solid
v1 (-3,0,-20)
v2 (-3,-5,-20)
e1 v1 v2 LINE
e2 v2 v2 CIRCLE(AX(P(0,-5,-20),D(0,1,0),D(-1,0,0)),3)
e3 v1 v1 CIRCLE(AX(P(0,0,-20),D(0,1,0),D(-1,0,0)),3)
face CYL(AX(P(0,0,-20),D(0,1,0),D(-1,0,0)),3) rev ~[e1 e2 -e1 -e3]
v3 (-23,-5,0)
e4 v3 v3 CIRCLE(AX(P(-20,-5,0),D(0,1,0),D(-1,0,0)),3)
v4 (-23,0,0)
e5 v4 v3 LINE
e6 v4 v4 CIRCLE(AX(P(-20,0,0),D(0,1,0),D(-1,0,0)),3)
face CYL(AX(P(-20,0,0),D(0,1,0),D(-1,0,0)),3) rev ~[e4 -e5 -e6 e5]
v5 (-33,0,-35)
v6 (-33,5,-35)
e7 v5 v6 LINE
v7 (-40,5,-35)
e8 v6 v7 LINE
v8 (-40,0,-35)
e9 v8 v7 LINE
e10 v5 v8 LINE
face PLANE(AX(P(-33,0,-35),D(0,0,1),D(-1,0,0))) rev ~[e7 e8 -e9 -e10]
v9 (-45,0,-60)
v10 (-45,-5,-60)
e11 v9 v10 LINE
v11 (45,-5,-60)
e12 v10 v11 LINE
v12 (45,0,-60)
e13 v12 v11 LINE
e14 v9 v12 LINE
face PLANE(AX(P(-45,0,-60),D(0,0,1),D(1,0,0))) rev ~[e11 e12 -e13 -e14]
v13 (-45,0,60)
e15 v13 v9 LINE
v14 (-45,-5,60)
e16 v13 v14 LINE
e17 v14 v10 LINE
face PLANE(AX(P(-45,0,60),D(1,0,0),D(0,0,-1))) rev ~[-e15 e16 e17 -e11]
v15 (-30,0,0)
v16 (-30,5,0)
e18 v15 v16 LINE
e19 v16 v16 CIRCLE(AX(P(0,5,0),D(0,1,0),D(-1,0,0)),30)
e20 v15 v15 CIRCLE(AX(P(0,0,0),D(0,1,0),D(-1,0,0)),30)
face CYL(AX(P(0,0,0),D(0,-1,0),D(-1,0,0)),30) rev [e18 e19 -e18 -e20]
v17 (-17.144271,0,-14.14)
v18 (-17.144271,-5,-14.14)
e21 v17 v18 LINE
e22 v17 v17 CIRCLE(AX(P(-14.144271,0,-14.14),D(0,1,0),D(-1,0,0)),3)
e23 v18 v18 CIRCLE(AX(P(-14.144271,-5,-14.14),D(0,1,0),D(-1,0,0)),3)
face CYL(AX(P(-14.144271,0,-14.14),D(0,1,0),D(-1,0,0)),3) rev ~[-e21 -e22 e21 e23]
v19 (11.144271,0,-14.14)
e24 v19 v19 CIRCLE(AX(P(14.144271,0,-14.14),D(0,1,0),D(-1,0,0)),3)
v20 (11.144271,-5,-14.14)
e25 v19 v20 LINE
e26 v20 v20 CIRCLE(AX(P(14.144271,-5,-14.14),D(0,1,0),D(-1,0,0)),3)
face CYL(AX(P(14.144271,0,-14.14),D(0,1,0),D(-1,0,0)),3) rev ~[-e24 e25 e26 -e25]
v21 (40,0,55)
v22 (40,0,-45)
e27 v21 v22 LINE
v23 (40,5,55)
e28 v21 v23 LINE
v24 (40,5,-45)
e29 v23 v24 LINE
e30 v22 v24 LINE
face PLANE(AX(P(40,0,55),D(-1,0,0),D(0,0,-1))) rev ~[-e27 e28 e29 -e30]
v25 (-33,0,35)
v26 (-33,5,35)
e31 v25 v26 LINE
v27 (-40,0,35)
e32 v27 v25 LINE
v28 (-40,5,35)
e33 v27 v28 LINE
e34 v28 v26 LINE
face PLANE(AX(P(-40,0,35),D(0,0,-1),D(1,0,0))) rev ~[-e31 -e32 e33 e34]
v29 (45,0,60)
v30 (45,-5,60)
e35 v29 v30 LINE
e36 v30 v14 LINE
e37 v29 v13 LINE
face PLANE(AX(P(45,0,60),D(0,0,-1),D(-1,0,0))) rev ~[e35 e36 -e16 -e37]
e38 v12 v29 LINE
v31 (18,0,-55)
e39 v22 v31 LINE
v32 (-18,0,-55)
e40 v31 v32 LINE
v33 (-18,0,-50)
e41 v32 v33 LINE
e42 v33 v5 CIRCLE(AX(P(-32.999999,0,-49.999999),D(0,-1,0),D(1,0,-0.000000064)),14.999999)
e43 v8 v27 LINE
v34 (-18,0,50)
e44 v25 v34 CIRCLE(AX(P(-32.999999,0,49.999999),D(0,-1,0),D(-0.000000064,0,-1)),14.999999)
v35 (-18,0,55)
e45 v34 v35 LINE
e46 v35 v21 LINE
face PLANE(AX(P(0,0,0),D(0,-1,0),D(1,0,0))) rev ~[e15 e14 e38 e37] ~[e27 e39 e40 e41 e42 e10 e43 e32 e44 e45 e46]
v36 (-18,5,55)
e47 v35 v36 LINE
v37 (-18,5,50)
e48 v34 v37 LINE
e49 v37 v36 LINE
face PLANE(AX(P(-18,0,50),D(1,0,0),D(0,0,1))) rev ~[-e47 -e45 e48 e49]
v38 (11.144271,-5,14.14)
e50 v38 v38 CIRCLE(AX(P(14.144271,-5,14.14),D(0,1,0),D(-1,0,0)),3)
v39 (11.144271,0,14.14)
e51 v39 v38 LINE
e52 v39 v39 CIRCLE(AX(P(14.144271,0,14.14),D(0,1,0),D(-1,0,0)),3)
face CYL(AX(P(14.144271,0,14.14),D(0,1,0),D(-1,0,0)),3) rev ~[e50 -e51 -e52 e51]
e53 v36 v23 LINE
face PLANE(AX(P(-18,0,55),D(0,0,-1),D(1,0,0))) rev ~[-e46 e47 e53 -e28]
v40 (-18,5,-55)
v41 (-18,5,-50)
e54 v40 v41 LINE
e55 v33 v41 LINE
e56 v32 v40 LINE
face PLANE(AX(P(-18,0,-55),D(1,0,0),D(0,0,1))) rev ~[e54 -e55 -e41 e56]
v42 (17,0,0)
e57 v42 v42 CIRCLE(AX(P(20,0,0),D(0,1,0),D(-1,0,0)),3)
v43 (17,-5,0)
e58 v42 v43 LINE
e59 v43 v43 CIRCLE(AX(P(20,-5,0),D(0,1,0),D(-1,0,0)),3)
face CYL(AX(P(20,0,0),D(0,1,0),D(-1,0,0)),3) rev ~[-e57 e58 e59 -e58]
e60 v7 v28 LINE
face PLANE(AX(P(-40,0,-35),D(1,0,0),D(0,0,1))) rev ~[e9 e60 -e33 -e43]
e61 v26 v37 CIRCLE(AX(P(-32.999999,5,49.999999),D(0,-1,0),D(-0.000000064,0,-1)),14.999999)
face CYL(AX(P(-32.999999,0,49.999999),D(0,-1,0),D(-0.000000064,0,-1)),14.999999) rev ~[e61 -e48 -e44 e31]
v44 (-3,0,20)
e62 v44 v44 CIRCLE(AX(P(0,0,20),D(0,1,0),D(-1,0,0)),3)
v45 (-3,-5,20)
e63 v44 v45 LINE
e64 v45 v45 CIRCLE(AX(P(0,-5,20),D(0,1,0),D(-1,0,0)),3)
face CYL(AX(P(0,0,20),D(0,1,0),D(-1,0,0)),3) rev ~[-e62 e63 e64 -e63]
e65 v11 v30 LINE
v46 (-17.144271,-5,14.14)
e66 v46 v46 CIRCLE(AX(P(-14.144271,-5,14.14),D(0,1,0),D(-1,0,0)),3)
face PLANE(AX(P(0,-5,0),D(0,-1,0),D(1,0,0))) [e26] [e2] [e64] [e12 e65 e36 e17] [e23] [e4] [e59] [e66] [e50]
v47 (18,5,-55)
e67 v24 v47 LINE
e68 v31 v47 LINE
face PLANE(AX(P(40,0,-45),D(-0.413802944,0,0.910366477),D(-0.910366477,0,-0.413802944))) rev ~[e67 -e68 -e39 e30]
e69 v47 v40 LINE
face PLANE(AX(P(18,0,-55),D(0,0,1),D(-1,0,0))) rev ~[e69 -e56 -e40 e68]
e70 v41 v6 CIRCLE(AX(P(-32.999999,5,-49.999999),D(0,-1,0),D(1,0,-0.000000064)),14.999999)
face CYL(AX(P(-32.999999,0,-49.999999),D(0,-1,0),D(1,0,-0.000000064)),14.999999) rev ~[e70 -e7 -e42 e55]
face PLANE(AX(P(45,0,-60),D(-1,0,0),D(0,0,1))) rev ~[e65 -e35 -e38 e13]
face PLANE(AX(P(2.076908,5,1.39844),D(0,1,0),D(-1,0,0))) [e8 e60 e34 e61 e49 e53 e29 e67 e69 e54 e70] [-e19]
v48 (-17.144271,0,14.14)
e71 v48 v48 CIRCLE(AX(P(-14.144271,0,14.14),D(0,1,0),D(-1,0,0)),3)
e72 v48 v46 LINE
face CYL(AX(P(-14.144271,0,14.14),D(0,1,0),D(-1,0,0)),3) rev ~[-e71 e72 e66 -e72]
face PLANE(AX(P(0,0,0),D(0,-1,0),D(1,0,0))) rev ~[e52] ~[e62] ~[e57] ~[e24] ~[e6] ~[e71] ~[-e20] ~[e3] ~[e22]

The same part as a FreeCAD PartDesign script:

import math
import FreeCAD as App
import Part
import Sketcher

doc = App.newDocument("Part")
body = doc.addObject("PartDesign::Body", "Body")

sketch1 = body.newObject("Sketcher::SketchObject", "Sketch")
sketch1.AttachmentSupport = (doc.getObject("XZ_Plane"), [""])
sketch1.MapMode = "FlatFace"
sketch1.addGeometry(Part.LineSegment(App.Vector(45, -60, 0), App.Vector(45, 60, 0)), False)
sketch1.addGeometry(Part.LineSegment(App.Vector(45, 60, 0), App.Vector(-45, 60, 0)), False)
sketch1.addGeometry(Part.LineSegment(App.Vector(-45, 60, 0), App.Vector(-45, -60, 0)), False)
sketch1.addGeometry(Part.LineSegment(App.Vector(-45, -60, 0), App.Vector(45, -60, 0)), False)
sketch1.addConstraint(Sketcher.Constraint("Coincident", 0, 2, 1, 1))
sketch1.addConstraint(Sketcher.Constraint("Coincident", 1, 2, 2, 1))
sketch1.addConstraint(Sketcher.Constraint("Coincident", 2, 2, 3, 1))
sketch1.addConstraint(Sketcher.Constraint("Coincident", 3, 2, 0, 1))
sketch1.addConstraint(Sketcher.Constraint("Vertical", 0))
sketch1.addConstraint(Sketcher.Constraint("Horizontal", 1))
sketch1.addConstraint(Sketcher.Constraint("Vertical", 2))
sketch1.addConstraint(Sketcher.Constraint("Horizontal", 3))
sketch1.addConstraint(Sketcher.Constraint("Symmetric", 0, 2, 2, 2, -1, 1))
sketch1.addConstraint(Sketcher.Constraint("DistanceX", 1, 2, 1, 1, 90.0))
sketch1.addConstraint(Sketcher.Constraint("DistanceY", 0, 1, 0, 2, 120.0))
pad1 = body.newObject("PartDesign::Pad", "Pad")
pad1.Profile = sketch1
pad1.Length = 5

sketch2 = body.newObject("Sketcher::SketchObject", "Sketch001")
sketch2.AttachmentSupport = (doc.getObject("XZ_Plane"), [""])
sketch2.MapMode = "FlatFace"
sketch2.addGeometry(Part.LineSegment(App.Vector(40, 55, 0), App.Vector(40, -45, 0)), False)
sketch2.addGeometry(Part.LineSegment(App.Vector(40, -45, 0), App.Vector(18, -55, 0)), False)
sketch2.addGeometry(Part.LineSegment(App.Vector(18, -55, 0), App.Vector(-18, -55, 0)), False)
sketch2.addGeometry(Part.LineSegment(App.Vector(-18, -55, 0), App.Vector(-18, -50, 0)), False)
sketch2.addGeometry(Part.ArcOfCircle(Part.Circle(App.Vector(-33, -50, 0), App.Vector(0, 0, 1), 15), math.radians(0), math.radians(90)), False)
sketch2.addGeometry(Part.LineSegment(App.Vector(-33, -35, 0), App.Vector(-40, -35, 0)), False)
sketch2.addGeometry(Part.LineSegment(App.Vector(-40, -35, 0), App.Vector(-40, 35, 0)), False)
sketch2.addGeometry(Part.LineSegment(App.Vector(-40, 35, 0), App.Vector(-33, 35, 0)), False)
sketch2.addGeometry(Part.ArcOfCircle(Part.Circle(App.Vector(-33, 50, 0), App.Vector(0, 0, 1), 15), math.radians(-90), math.radians(0)), False)
sketch2.addGeometry(Part.LineSegment(App.Vector(-18, 50, 0), App.Vector(-18, 55, 0)), False)
sketch2.addGeometry(Part.LineSegment(App.Vector(-18, 55, 0), App.Vector(40, 55, 0)), False)
sketch2.addGeometry(Part.Circle(App.Vector(0, 0, 0), App.Vector(0, 0, 1), 30), False)
sketch2.addConstraint(Sketcher.Constraint("Coincident", 0, 2, 1, 1))
sketch2.addConstraint(Sketcher.Constraint("Coincident", 1, 2, 2, 1))
sketch2.addConstraint(Sketcher.Constraint("Coincident", 2, 2, 3, 1))
sketch2.addConstraint(Sketcher.Constraint("Tangent", 3, 2, 4, 1))
sketch2.addConstraint(Sketcher.Constraint("Tangent", 4, 2, 5, 1))
sketch2.addConstraint(Sketcher.Constraint("Coincident", 5, 2, 6, 1))
sketch2.addConstraint(Sketcher.Constraint("Coincident", 6, 2, 7, 1))
sketch2.addConstraint(Sketcher.Constraint("Tangent", 7, 2, 8, 1))
sketch2.addConstraint(Sketcher.Constraint("Tangent", 8, 2, 9, 1))
sketch2.addConstraint(Sketcher.Constraint("Coincident", 9, 2, 10, 1))
sketch2.addConstraint(Sketcher.Constraint("Coincident", 10, 2, 0, 1))
sketch2.addConstraint(Sketcher.Constraint("Vertical", 0))
sketch2.addConstraint(Sketcher.Constraint("Horizontal", 2))
sketch2.addConstraint(Sketcher.Constraint("Vertical", 3))
sketch2.addConstraint(Sketcher.Constraint("Horizontal", 5))
sketch2.addConstraint(Sketcher.Constraint("Vertical", 6))
sketch2.addConstraint(Sketcher.Constraint("Horizontal", 7))
sketch2.addConstraint(Sketcher.Constraint("Vertical", 9))
sketch2.addConstraint(Sketcher.Constraint("Horizontal", 10))
sketch2.addConstraint(Sketcher.Constraint("Coincident", 11, 3, -1, 1))
sketch2.addConstraint(Sketcher.Constraint("Equal", 4, 8))
sketch2.addConstraint(Sketcher.Constraint("Symmetric", 1, 2, 9, 2, -1, 1))
sketch2.addConstraint(Sketcher.Constraint("Symmetric", 4, 3, 8, 3, -1))
sketch2.addConstraint(Sketcher.Constraint("Diameter", 11, 60.0))
sketch2.addConstraint(Sketcher.Constraint("Radius", 4, 14.999999))
sketch2.addConstraint(Sketcher.Constraint("DistanceX", 2, 2, 2, 1, 36.0))
sketch2.addConstraint(Sketcher.Constraint("DistanceX", 5, 2, 5, 1, 7.0))
sketch2.addConstraint(Sketcher.Constraint("DistanceX", 10, 1, 10, 2, 58.0))
sketch2.addConstraint(Sketcher.Constraint("DistanceY", 0, 2, 0, 1, 100.0))
sketch2.addConstraint(Sketcher.Constraint("DistanceY", 3, 1, 3, 2, 5.0))
sketch2.addConstraint(Sketcher.Constraint("DistanceY", 6, 1, 6, 2, 70.0))
pad2 = body.newObject("PartDesign::Pad", "Pad001")
pad2.Profile = sketch2
pad2.Length = 5
pad2.Reversed = True

sketch3 = body.newObject("Sketcher::SketchObject", "Sketch002")
sketch3.AttachmentSupport = (doc.getObject("XZ_Plane"), [""])
sketch3.MapMode = "FlatFace"
sketch3.addGeometry(Part.Circle(App.Vector(14.1, -14.1, 0), App.Vector(0, 0, 1), 3), False)
sketch3.addGeometry(Part.Circle(App.Vector(20, 0, 0), App.Vector(0, 0, 1), 3), False)
sketch3.addGeometry(Part.Circle(App.Vector(14.1, 14.1, 0), App.Vector(0, 0, 1), 3), False)
sketch3.addGeometry(Part.Circle(App.Vector(0, 20, 0), App.Vector(0, 0, 1), 3), False)
sketch3.addGeometry(Part.Circle(App.Vector(-14.1, 14.1, 0), App.Vector(0, 0, 1), 3), False)
sketch3.addGeometry(Part.Circle(App.Vector(-20, 0, 0), App.Vector(0, 0, 1), 3), False)
sketch3.addGeometry(Part.Circle(App.Vector(-14.1, -14.1, 0), App.Vector(0, 0, 1), 3), False)
sketch3.addGeometry(Part.Circle(App.Vector(0, -20, 0), App.Vector(0, 0, 1), 3), False)
sketch3.addConstraint(Sketcher.Constraint("Equal", 0, 1))
sketch3.addConstraint(Sketcher.Constraint("Equal", 1, 2))
sketch3.addConstraint(Sketcher.Constraint("Equal", 2, 3))
sketch3.addConstraint(Sketcher.Constraint("Equal", 3, 4))
sketch3.addConstraint(Sketcher.Constraint("Equal", 4, 5))
sketch3.addConstraint(Sketcher.Constraint("Equal", 5, 6))
sketch3.addConstraint(Sketcher.Constraint("Equal", 6, 7))
sketch3.addConstraint(Sketcher.Constraint("Symmetric", 0, 3, 4, 3, -1, 1))
sketch3.addConstraint(Sketcher.Constraint("Symmetric", 1, 3, 5, 3, -1, 1))
sketch3.addConstraint(Sketcher.Constraint("Symmetric", 2, 3, 6, 3, -1, 1))
sketch3.addConstraint(Sketcher.Constraint("Symmetric", 3, 3, 7, 3, -1, 1))
sketch3.addConstraint(Sketcher.Constraint("Symmetric", 2, 3, 4, 3, -2))
sketch3.addConstraint(Sketcher.Constraint("PointOnObject", 1, 3, -1))
sketch3.addConstraint(Sketcher.Constraint("PointOnObject", 3, 3, -2))
sketch3.addConstraint(Sketcher.Constraint("Diameter", 0, 6.0))
sketch3.addConstraint(Sketcher.Constraint("DistanceX", -1, 1, 1, 3, 20.0))
sketch3.addConstraint(Sketcher.Constraint("DistanceY", -1, 1, 3, 3, 20.0))
sketch3.addConstraint(Sketcher.Constraint("DistanceY", 0, 3, -1, 1, 14.14))
sketch3.addConstraint(Sketcher.Constraint("DistanceX", -1, 1, 0, 3, 14.144271))
pocket1 = body.newObject("PartDesign::Pocket", "Pocket")
pocket1.Profile = sketch3
pocket1.Length = 5
pocket1.Reversed = True

doc.recompute()
